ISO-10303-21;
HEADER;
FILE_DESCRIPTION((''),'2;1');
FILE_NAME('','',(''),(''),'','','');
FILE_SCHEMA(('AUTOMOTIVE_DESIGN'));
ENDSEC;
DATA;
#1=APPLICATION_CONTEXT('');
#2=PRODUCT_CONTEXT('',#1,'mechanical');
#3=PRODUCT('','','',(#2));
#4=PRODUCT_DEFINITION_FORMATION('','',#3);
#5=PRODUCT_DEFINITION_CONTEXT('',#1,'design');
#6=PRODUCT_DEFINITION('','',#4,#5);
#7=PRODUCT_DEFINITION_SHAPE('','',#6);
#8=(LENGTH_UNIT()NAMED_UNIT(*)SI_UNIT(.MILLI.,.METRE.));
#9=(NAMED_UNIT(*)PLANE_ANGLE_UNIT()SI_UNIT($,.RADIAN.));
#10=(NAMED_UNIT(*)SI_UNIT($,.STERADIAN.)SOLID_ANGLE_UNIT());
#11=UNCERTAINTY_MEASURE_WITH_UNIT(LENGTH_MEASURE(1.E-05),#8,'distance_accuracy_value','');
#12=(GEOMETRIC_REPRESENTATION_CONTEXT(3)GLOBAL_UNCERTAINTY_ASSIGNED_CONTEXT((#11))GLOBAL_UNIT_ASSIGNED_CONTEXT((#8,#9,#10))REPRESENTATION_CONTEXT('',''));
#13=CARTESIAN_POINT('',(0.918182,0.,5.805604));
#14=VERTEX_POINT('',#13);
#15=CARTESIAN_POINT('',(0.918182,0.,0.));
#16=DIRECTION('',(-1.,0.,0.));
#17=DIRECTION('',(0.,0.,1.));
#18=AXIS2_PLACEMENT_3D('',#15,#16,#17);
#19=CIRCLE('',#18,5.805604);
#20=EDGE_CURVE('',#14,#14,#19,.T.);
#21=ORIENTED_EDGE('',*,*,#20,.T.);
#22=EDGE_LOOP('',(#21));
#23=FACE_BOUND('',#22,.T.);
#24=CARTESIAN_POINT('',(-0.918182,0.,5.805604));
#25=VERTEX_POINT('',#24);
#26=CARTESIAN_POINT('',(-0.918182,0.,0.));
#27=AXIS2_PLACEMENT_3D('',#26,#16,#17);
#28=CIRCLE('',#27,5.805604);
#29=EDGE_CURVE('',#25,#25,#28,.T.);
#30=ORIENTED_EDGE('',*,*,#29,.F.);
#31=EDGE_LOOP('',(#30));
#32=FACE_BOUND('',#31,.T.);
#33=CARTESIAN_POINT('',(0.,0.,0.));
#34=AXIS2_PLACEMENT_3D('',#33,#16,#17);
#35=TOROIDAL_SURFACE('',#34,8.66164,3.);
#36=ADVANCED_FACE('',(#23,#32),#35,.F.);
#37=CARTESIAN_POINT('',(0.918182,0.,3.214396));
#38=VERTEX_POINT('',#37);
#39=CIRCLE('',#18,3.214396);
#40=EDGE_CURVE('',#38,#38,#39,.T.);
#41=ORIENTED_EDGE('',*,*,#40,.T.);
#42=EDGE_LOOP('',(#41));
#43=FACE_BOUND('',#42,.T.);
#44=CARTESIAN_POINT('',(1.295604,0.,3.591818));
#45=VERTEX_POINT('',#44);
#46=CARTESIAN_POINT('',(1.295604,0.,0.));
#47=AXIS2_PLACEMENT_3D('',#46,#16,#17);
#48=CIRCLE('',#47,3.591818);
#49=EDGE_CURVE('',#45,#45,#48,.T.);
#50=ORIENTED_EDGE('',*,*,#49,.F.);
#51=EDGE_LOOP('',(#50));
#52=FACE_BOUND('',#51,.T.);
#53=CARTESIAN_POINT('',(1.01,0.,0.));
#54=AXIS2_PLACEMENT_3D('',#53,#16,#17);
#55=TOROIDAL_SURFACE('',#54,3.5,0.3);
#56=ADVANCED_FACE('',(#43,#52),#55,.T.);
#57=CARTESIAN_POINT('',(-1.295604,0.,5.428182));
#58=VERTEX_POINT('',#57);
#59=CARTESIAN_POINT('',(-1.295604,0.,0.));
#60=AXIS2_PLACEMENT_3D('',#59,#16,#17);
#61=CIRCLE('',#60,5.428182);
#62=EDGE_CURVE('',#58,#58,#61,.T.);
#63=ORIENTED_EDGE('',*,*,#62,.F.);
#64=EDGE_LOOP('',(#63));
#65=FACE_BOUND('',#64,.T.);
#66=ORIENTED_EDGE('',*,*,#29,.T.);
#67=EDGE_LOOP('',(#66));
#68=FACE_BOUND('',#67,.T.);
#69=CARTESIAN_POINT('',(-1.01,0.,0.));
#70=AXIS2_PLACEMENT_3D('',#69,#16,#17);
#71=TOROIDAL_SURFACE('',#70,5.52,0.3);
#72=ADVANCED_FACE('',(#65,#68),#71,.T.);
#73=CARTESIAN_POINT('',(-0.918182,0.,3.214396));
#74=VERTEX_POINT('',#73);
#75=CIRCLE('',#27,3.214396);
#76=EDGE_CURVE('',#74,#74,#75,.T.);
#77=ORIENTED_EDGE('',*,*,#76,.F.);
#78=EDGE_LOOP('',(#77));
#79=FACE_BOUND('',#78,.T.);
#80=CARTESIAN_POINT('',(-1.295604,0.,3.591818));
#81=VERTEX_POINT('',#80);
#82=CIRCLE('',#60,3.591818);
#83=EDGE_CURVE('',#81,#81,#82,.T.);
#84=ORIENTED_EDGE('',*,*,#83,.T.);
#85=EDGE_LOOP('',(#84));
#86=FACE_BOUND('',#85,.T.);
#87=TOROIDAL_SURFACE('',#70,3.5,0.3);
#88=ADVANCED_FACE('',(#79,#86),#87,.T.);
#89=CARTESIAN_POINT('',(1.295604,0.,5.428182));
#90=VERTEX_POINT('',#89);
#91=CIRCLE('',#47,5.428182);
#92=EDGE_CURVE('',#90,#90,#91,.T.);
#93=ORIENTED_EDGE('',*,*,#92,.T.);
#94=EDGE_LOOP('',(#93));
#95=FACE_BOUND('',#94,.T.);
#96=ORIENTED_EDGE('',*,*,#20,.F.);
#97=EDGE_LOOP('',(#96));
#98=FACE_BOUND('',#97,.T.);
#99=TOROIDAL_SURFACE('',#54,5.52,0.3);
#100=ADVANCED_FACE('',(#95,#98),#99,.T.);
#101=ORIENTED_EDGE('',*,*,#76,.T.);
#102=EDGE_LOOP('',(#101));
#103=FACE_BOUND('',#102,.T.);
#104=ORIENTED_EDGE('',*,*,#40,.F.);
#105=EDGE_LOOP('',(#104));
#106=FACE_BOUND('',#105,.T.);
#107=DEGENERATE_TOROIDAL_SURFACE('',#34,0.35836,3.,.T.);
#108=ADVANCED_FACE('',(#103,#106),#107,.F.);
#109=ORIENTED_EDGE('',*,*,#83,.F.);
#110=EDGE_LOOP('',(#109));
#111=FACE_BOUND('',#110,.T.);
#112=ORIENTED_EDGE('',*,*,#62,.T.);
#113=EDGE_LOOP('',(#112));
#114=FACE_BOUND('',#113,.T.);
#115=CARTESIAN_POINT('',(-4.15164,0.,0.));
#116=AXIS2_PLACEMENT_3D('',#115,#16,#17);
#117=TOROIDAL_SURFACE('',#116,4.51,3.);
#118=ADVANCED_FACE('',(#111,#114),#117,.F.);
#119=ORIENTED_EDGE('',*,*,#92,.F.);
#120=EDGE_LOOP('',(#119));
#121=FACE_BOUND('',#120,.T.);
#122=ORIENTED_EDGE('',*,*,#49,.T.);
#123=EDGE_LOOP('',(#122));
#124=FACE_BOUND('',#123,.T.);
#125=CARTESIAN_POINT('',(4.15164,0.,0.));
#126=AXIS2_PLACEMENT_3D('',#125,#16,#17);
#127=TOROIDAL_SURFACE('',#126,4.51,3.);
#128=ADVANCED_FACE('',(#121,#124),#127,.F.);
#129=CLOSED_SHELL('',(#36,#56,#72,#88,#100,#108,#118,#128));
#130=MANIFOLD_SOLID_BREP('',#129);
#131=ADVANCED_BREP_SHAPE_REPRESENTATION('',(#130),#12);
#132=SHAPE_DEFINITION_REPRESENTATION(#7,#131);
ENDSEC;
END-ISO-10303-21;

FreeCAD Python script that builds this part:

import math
import FreeCAD as App
import Part
import Sketcher
from FreeCAD import Vector
Q = App.Units.Quantity

doc = App.newDocument("Part")
body = doc.addObject("PartDesign::Body", "Body")

sketch1 = doc.addObject("Sketcher::SketchObject", "Sketch")
body.addObject(sketch1)
sketch1.AttachmentSupport = (doc.XY_Plane, [""])
sketch1.MapMode = "FlatFace"
sketch1.addGeometry([
    Part.ArcOfCircle(Part.Circle(Vector(-1.01, 5.52, 0), Vector(0, 0, 1), 0.3), math.radians(72), math.radians(198)),
    Part.ArcOfCircle(Part.Circle(Vector(-4.15, 4.51, 0), Vector(0, 0, 1), 3), math.radians(-18), math.radians(18)),
    Part.ArcOfCircle(Part.Circle(Vector(-1.01, 3.5, 0), Vector(0, 0, 1), 0.3), math.radians(162), math.radians(288)),
    Part.ArcOfCircle(Part.Circle(Vector(0, 0.36, 0), Vector(0, 0, 1), 3), math.radians(72), math.radians(108)),
    Part.ArcOfCircle(Part.Circle(Vector(1.01, 3.5, 0), Vector(0, 0, 1), 0.3), math.radians(-108), math.radians(18)),
    Part.ArcOfCircle(Part.Circle(Vector(4.15, 4.51, 0), Vector(0, 0, 1), 3), math.radians(162), math.radians(198)),
    Part.ArcOfCircle(Part.Circle(Vector(1.01, 5.52, 0), Vector(0, 0, 1), 0.3), math.radians(-18), math.radians(108)),
    Part.ArcOfCircle(Part.Circle(Vector(0, 8.66, 0), Vector(0, 0, 1), 3), math.radians(-108), math.radians(-72)),
], False)
sketch1.addConstraint([
    Sketcher.Constraint("Tangent", 0, 2, 1, 2),
    Sketcher.Constraint("Tangent", 1, 1, 2, 1),
    Sketcher.Constraint("Tangent", 2, 2, 3, 2),
    Sketcher.Constraint("Tangent", 3, 1, 4, 1),
    Sketcher.Constraint("Tangent", 4, 2, 5, 2),
    Sketcher.Constraint("Tangent", 5, 1, 6, 1),
    Sketcher.Constraint("Tangent", 6, 2, 7, 2),
    Sketcher.Constraint("Tangent", 7, 1, 0, 1),
    Sketcher.Constraint("Equal", 0, 2),
    Sketcher.Constraint("Equal", 1, 3),
    Sketcher.Constraint("Equal", 2, 4),
    Sketcher.Constraint("Equal", 3, 5),
    Sketcher.Constraint("Equal", 4, 6),
    Sketcher.Constraint("Equal", 5, 7),
    Sketcher.Constraint("Symmetric", 2, 3, 4, 3, -2),
    Sketcher.Constraint("Symmetric", 0, 3, 6, 3, -2),
    Sketcher.Constraint("Vertical", 0, 3, 2, 3),
    Sketcher.Constraint("Radius", 1, Q("3 mm")),
    Sketcher.Constraint("Radius", 0, Q("0.3 mm")),
    Sketcher.Constraint("DistanceY", -1, 1, 2, 3, Q("3.5 mm")),
    Sketcher.Constraint("DistanceX", 0, 3, -1, 1, Q("1.01 mm")),
    Sketcher.Constraint("DistanceY", -1, 1, 0, 3, Q("5.52 mm")),
])
revolution = doc.addObject("PartDesign::Revolution", "Revolution")
body.addObject(revolution)
revolution.Profile = sketch1
revolution.ReferenceAxis = (sketch1, ["H_Axis"])
revolution.Angle = 360

doc.recompute()
